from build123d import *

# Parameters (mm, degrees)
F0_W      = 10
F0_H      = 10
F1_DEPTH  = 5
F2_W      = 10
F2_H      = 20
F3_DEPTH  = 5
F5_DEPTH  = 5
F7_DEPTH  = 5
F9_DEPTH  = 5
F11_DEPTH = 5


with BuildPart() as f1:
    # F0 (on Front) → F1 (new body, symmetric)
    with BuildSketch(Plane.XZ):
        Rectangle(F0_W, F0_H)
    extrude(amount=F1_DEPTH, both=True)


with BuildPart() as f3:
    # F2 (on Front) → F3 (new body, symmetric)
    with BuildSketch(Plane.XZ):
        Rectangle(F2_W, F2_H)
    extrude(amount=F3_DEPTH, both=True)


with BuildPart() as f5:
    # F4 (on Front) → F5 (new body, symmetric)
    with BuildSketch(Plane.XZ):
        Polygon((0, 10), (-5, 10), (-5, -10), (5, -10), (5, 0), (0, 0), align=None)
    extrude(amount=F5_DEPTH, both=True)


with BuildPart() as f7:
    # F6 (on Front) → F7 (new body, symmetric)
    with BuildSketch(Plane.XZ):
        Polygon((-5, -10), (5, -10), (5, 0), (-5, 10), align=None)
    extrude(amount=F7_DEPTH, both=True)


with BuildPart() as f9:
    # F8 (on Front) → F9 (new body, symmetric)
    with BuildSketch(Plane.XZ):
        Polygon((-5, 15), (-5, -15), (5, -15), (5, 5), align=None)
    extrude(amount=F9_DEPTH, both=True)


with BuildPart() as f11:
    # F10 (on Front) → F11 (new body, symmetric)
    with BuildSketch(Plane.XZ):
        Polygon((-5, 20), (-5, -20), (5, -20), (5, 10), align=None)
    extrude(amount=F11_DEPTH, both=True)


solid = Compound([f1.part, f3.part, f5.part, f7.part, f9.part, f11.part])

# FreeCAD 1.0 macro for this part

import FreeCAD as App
import Part
import Sketcher

doc = App.newDocument("Part")
body = doc.addObject("PartDesign::Body", "Body")

sketch1 = doc.addObject("Sketcher::SketchObject", "Sketch")
body.addObject(sketch1)
sketch1.AttachmentSupport = (doc.XZ_Plane, [""])
sketch1.MapMode = "FlatFace"
sketch1.addGeometry([
    Part.LineSegment(App.Vector(-5, 5, 0), App.Vector(-5, -5, 0)),
    Part.LineSegment(App.Vector(-5, -5, 0), App.Vector(5, -5, 0)),
    Part.LineSegment(App.Vector(5, -5, 0), App.Vector(5, 5, 0)),
    Part.LineSegment(App.Vector(5, 5, 0), App.Vector(-5, 5, 0)),
], False)
sketch1.addConstraint([
    Sketcher.Constraint("Coincident", 0, 2, 1, 1),
    Sketcher.Constraint("Coincident", 1, 2, 2, 1),
    Sketcher.Constraint("Coincident", 2, 2, 3, 1),
    Sketcher.Constraint("Coincident", 3, 2, 0, 1),
    Sketcher.Constraint("Vertical", 0),
    Sketcher.Constraint("Horizontal", 1),
    Sketcher.Constraint("Vertical", 2),
    Sketcher.Constraint("Horizontal", 3),
    Sketcher.Constraint("Symmetric", 0, 2, 2, 2, -1, 1),
    Sketcher.Constraint("Equal", 3, 0),
    Sketcher.Constraint("DistanceX", 1, 1, 1, 2, 10.0),
])
pad1 = doc.addObject("PartDesign::Pad", "Pad")
body.addObject(pad1)
pad1.Profile = sketch1
pad1.Length = 10
pad1.Midplane = True
body2 = doc.addObject("PartDesign::Body", "Body001")

sketch2 = doc.addObject("Sketcher::SketchObject", "Sketch001")
body2.addObject(sketch2)
sketch2.AttachmentSupport = (doc.getObject("XZ_Plane001"), [""])
sketch2.MapMode = "FlatFace"
sketch2.addGeometry([
    Part.LineSegment(App.Vector(-5, 10, 0), App.Vector(-5, -10, 0)),
    Part.LineSegment(App.Vector(-5, -10, 0), App.Vector(5, -10, 0)),
    Part.LineSegment(App.Vector(5, -10, 0), App.Vector(5, 10, 0)),
    Part.LineSegment(App.Vector(5, 10, 0), App.Vector(-5, 10, 0)),
], False)
sketch2.addConstraint([
    Sketcher.Constraint("Coincident", 0, 2, 1, 1),
    Sketcher.Constraint("Coincident", 1, 2, 2, 1),
    Sketcher.Constraint("Coincident", 2, 2, 3, 1),
    Sketcher.Constraint("Coincident", 3, 2, 0, 1),
    Sketcher.Constraint("Vertical", 0),
    Sketcher.Constraint("Horizontal", 1),
    Sketcher.Constraint("Vertical", 2),
    Sketcher.Constraint("Horizontal", 3),
    Sketcher.Constraint("Symmetric", 0, 2, 2, 2, -1, 1),
    Sketcher.Constraint("DistanceX", 1, 1, 1, 2, 10.0),
    Sketcher.Constraint("DistanceY", 0, 2, 0, 1, 20.0),
])
pad2 = doc.addObject("PartDesign::Pad", "Pad001")
body2.addObject(pad2)
pad2.Profile = sketch2
pad2.Length = 10
pad2.Midplane = True
body3 = doc.addObject("PartDesign::Body", "Body002")

sketch3 = doc.addObject("Sketcher::SketchObject", "Sketch002")
body3.addObject(sketch3)
sketch3.AttachmentSupport = (doc.getObject("XZ_Plane002"), [""])
sketch3.MapMode = "FlatFace"
sketch3.addGeometry([
    Part.LineSegment(App.Vector(0, 10, 0), App.Vector(-5, 10, 0)),
    Part.LineSegment(App.Vector(-5, 10, 0), App.Vector(-5, -10, 0)),
    Part.LineSegment(App.Vector(-5, -10, 0), App.Vector(5, -10, 0)),
    Part.LineSegment(App.Vector(5, -10, 0), App.Vector(5, 0, 0)),
    Part.LineSegment(App.Vector(5, 0, 0), App.Vector(0, 0, 0)),
    Part.LineSegment(App.Vector(0, 0, 0), App.Vector(0, 10, 0)),
], False)
sketch3.addConstraint([
    Sketcher.Constraint("Coincident", 0, 2, 1, 1),
    Sketcher.Constraint("Coincident", 1, 2, 2, 1),
    Sketcher.Constraint("Coincident", 2, 2, 3, 1),
    Sketcher.Constraint("Coincident", 3, 2, 4, 1),
    Sketcher.Constraint("Coincident", 4, 2, 5, 1),
    Sketcher.Constraint("Coincident", 5, 2, 0, 1),
    Sketcher.Constraint("Horizontal", 0),
    Sketcher.Constraint("Vertical", 1),
    Sketcher.Constraint("Horizontal", 2),
    Sketcher.Constraint("Vertical", 3),
    Sketcher.Constraint("Horizontal", 4),
    Sketcher.Constraint("Vertical", 5),
    Sketcher.Constraint("Coincident", 4, 2, -1, 1),
    Sketcher.Constraint("Symmetric", 0, 2, 2, 2, -1, 1),
    Sketcher.Constraint("Equal", 2, 3),
    Sketcher.Constraint("DistanceX", 0, 2, 0, 1, 5.0),
])
pad3 = doc.addObject("PartDesign::Pad", "Pad002")
body3.addObject(pad3)
pad3.Profile = sketch3
pad3.Length = 10
pad3.Midplane = True
body4 = doc.addObject("PartDesign::Body", "Body003")

sketch4 = doc.addObject("Sketcher::SketchObject", "Sketch003")
body4.addObject(sketch4)
sketch4.AttachmentSupport = (doc.getObject("XZ_Plane003"), [""])
sketch4.MapMode = "FlatFace"
sketch4.addGeometry([
    Part.LineSegment(App.Vector(-5, -10, 0), App.Vector(5, -10, 0)),
    Part.LineSegment(App.Vector(5, -10, 0), App.Vector(5, 0, 0)),
    Part.LineSegment(App.Vector(5, 0, 0), App.Vector(-5, 10, 0)),
    Part.LineSegment(App.Vector(-5, 10, 0), App.Vector(-5, -10, 0)),
], False)
sketch4.addConstraint([
    Sketcher.Constraint("Coincident", 0, 2, 1, 1),
    Sketcher.Constraint("Coincident", 1, 2, 2, 1),
    Sketcher.Constraint("Coincident", 2, 2, 3, 1),
    Sketcher.Constraint("Coincident", 3, 2, 0, 1),
    Sketcher.Constraint("Horizontal", 0),
    Sketcher.Constraint("Vertical", 1),
    Sketcher.Constraint("Vertical", 3),
    Sketcher.Constraint("Symmetric", 0, 2, 2, 2, -1, 1),
    Sketcher.Constraint("PointOnObject", 1, 2, -1),
    Sketcher.Constraint("Equal", 0, 1),
    Sketcher.Constraint("DistanceX", 0, 1, 0, 2, 10.0),
])
pad4 = doc.addObject("PartDesign::Pad", "Pad003")
body4.addObject(pad4)
pad4.Profile = sketch4
pad4.Length = 10
pad4.Midplane = True
body5 = doc.addObject("PartDesign::Body", "Body004")

sketch5 = doc.addObject("Sketcher::SketchObject", "Sketch004")
body5.addObject(sketch5)
sketch5.AttachmentSupport = (doc.getObject("XZ_Plane004"), [""])
sketch5.MapMode = "FlatFace"
sketch5.addGeometry([
    Part.LineSegment(App.Vector(-5, 15, 0), App.Vector(-5, -15, 0)),
    Part.LineSegment(App.Vector(-5, -15, 0), App.Vector(5, -15, 0)),
    Part.LineSegment(App.Vector(5, -15, 0), App.Vector(5, 5, 0)),
    Part.LineSegment(App.Vector(5, 5, 0), App.Vector(-5, 15, 0)),
], False)
sketch5.addConstraint([
    Sketcher.Constraint("Coincident", 0, 2, 1, 1),
    Sketcher.Constraint("Coincident", 1, 2, 2, 1),
    Sketcher.Constraint("Coincident", 2, 2, 3, 1),
    Sketcher.Constraint("Coincident", 3, 2, 0, 1),
    Sketcher.Constraint("Vertical", 0),
    Sketcher.Constraint("Horizontal", 1),
    Sketcher.Constraint("Vertical", 2),
    Sketcher.Constraint("Symmetric", 1, 2, 3, 2, -1, 1),
    Sketcher.Constraint("DistanceX", 1, 1, 1, 2, 10.0),
    Sketcher.Constraint("DistanceY", 0, 2, 0, 1, 30.0),
    Sketcher.Constraint("DistanceY", 2, 1, 2, 2, 20.0),
])
pad5 = doc.addObject("PartDesign::Pad", "Pad004")
body5.addObject(pad5)
pad5.Profile = sketch5
pad5.Length = 10
pad5.Midplane = True
body6 = doc.addObject("PartDesign::Body", "Body005")

sketch6 = doc.addObject("Sketcher::SketchObject", "Sketch005")
body6.addObject(sketch6)
sketch6.AttachmentSupport = (doc.getObject("XZ_Plane005"), [""])
sketch6.MapMode = "FlatFace"
sketch6.addGeometry([
    Part.LineSegment(App.Vector(-5, 20, 0), App.Vector(-5, -20, 0)),
    Part.LineSegment(App.Vector(-5, -20, 0), App.Vector(5, -20, 0)),
    Part.LineSegment(App.Vector(5, -20, 0), App.Vector(5, 10, 0)),
    Part.LineSegment(App.Vector(5, 10, 0), App.Vector(-5, 20, 0)),
], False)
sketch6.addConstraint([
    Sketcher.Constraint("Coincident", 0, 2, 1, 1),
    Sketcher.Constraint("Coincident", 1, 2, 2, 1),
    Sketcher.Constraint("Coincident", 2, 2, 3, 1),
    Sketcher.Constraint("Coincident", 3, 2, 0, 1),
    Sketcher.Constraint("Vertical", 0),
    Sketcher.Constraint("Horizontal", 1),
    Sketcher.Constraint("Vertical", 2),
    Sketcher.Constraint("Symmetric", 1, 2, 3, 2, -1, 1),
    Sketcher.Constraint("DistanceX", 1, 1, 1, 2, 10.0),
    Sketcher.Constraint("DistanceY", 0, 2, 0, 1, 40.0),
    Sketcher.Constraint("DistanceY", 2, 1, 2, 2, 30.0),
])
pad6 = doc.addObject("PartDesign::Pad", "Pad005")
body6.addObject(pad6)
pad6.Profile = sketch6
pad6.Length = 10
pad6.Midplane = True

doc.recompute()
